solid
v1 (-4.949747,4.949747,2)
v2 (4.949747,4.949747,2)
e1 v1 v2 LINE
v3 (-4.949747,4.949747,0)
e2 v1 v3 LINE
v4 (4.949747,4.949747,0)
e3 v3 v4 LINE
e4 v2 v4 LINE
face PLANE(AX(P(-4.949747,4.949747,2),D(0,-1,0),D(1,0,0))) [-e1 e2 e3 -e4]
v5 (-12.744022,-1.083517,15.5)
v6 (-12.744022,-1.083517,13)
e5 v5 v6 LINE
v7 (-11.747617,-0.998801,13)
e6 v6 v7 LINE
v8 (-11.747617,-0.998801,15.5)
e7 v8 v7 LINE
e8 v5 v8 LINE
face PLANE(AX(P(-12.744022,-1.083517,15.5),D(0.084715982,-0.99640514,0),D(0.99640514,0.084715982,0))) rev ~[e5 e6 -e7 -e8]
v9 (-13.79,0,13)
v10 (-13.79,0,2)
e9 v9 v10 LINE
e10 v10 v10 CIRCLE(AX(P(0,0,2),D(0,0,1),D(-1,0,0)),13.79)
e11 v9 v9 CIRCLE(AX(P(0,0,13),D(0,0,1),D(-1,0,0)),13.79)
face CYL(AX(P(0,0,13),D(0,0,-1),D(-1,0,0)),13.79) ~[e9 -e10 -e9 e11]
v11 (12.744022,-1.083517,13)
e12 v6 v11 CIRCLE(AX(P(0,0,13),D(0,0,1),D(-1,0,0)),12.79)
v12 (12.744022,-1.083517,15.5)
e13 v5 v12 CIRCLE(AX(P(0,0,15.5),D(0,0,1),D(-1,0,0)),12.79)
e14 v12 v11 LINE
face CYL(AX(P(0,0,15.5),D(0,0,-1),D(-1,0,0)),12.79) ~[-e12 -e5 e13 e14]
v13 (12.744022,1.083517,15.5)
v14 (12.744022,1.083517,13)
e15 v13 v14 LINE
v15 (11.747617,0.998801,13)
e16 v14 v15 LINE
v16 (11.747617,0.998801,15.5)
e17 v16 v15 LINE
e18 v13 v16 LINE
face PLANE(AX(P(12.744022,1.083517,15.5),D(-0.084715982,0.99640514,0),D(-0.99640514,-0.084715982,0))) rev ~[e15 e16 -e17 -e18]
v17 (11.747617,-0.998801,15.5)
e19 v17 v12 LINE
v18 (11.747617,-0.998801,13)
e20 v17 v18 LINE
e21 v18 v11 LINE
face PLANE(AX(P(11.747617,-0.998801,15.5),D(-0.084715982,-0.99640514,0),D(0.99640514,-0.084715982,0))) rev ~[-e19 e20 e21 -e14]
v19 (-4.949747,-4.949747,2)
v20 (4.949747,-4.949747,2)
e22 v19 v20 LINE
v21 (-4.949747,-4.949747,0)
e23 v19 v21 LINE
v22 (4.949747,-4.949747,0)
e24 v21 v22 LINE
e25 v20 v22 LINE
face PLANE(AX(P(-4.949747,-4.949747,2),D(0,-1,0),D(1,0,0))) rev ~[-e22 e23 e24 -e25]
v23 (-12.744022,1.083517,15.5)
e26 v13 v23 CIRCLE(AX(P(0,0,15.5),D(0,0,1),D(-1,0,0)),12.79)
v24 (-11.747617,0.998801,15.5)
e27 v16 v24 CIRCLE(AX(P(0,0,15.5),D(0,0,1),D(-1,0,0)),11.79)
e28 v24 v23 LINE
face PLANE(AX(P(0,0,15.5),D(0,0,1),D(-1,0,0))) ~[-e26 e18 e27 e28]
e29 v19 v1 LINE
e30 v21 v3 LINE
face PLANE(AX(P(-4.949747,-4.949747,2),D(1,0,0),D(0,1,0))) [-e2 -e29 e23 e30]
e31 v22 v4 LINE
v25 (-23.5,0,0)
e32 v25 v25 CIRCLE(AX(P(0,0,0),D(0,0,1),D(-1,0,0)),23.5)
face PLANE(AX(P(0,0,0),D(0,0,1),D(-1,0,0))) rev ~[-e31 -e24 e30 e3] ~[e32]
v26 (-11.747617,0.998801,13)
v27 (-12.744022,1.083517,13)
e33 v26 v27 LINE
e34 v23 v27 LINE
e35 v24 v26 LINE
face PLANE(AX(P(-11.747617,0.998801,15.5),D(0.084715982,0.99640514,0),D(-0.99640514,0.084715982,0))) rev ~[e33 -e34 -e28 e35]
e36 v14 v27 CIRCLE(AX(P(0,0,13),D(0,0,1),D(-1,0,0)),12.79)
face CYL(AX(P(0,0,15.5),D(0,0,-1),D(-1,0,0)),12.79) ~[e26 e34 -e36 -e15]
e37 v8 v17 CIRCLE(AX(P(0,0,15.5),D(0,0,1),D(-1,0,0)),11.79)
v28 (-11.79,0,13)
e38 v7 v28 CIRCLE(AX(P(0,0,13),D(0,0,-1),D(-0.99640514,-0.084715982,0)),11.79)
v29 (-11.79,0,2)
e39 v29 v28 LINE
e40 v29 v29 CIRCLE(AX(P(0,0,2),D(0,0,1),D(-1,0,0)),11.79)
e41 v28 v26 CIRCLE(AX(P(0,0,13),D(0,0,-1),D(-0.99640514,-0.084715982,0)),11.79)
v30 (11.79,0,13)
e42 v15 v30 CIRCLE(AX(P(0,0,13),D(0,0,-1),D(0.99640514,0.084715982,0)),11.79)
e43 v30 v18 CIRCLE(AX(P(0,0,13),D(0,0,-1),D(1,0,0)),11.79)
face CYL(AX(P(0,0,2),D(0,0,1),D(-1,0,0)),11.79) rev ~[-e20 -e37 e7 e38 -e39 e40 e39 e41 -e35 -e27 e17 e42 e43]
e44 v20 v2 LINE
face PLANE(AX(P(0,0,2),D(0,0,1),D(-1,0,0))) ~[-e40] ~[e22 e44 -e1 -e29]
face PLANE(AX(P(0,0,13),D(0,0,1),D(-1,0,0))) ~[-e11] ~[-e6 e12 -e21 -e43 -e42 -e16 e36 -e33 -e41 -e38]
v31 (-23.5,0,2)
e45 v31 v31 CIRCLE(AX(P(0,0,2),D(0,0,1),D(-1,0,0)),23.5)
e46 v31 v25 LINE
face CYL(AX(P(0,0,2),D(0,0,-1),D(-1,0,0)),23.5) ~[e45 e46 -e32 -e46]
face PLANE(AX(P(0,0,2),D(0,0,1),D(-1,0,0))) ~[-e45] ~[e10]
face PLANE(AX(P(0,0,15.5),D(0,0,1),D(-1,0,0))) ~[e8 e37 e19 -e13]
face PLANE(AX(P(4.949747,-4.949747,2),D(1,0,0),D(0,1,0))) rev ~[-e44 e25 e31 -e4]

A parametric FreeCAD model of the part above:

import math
import FreeCAD as App
import Part
import Sketcher

V = App.Vector

doc = App.newDocument("Part")
params = doc.addObject("Spreadsheet::Sheet", "Params")
for row, (alias, value) in enumerate([
    ("sketch1_width", "1 mm"),
    ("sketch1_height", "2 mm"),
    ("sketch1_height2", "11 mm"),
    ("sketch1_width2", "23.5 mm"),
    ("sketch1_height3", "13.5 mm"),
    ("revolution_angle", "360 deg"),
    ("sketch2_radius", "12.79 mm"),
    ("sketch2_radius2", "11.79 mm"),
    ("pocket1_length", "2.5 mm"),
], start=1):
    params.set(f"A{row}", alias)
    params.set(f"B{row}", "=" + value)
    params.setAlias(f"B{row}", alias)

body = doc.addObject("PartDesign::Body", "Body")

sketch1 = doc.addObject("Sketcher::SketchObject", "Sketch")
body.addObject(sketch1)
sketch1.AttachmentSupport = (doc.XZ_Plane, [""])
sketch1.MapMode = "FlatFace"
sketch1.addGeometry(Part.LineSegment(V(-23.5, 0, 0), V(0, 0, 0)), False)
sketch1.addGeometry(Part.LineSegment(V(0, 0, 0), V(0, 2, 0)), False)
sketch1.addGeometry(Part.LineSegment(V(0, 2, 0), V(-11.8, 2, 0)), False)
sketch1.addGeometry(Part.LineSegment(V(-11.8, 2, 0), V(-11.8, 15.5, 0)), False)
sketch1.addGeometry(Part.LineSegment(V(-11.8, 15.5, 0), V(-12.8, 15.5, 0)), False)
sketch1.addGeometry(Part.LineSegment(V(-12.8, 15.5, 0), V(-12.8, 13, 0)), False)
sketch1.addGeometry(Part.LineSegment(V(-12.8, 13, 0), V(-13.8, 13, 0)), False)
sketch1.addGeometry(Part.LineSegment(V(-13.8, 13, 0), V(-13.8, 2, 0)), False)
sketch1.addGeometry(Part.LineSegment(V(-13.8, 2, 0), V(-23.5, 2, 0)), False)
sketch1.addGeometry(Part.LineSegment(V(-23.5, 2, 0), V(-23.5, 0, 0)), False)
sketch1.addConstraint(Sketcher.Constraint("Coincident", 0, 2, 1, 1))
sketch1.addConstraint(Sketcher.Constraint("Coincident", 1, 2, 2, 1))
sketch1.addConstraint(Sketcher.Constraint("Coincident", 2, 2, 3, 1))
sketch1.addConstraint(Sketcher.Constraint("Coincident", 3, 2, 4, 1))
sketch1.addConstraint(Sketcher.Constraint("Coincident", 4, 2, 5, 1))
sketch1.addConstraint(Sketcher.Constraint("Coincident", 5, 2, 6, 1))
sketch1.addConstraint(Sketcher.Constraint("Coincident", 6, 2, 7, 1))
sketch1.addConstraint(Sketcher.Constraint("Coincident", 7, 2, 8, 1))
sketch1.addConstraint(Sketcher.Constraint("Coincident", 8, 2, 9, 1))
sketch1.addConstraint(Sketcher.Constraint("Coincident", 9, 2, 0, 1))
sketch1.addConstraint(Sketcher.Constraint("Horizontal", 0))
sketch1.addConstraint(Sketcher.Constraint("Vertical", 1))
sketch1.addConstraint(Sketcher.Constraint("Horizontal", 2))
sketch1.addConstraint(Sketcher.Constraint("Vertical", 3))
sketch1.addConstraint(Sketcher.Constraint("Horizontal", 4))
sketch1.addConstraint(Sketcher.Constraint("Vertical", 5))
sketch1.addConstraint(Sketcher.Constraint("Horizontal", 6))
sketch1.addConstraint(Sketcher.Constraint("Vertical", 7))
sketch1.addConstraint(Sketcher.Constraint("Horizontal", 8))
sketch1.addConstraint(Sketcher.Constraint("Vertical", 9))
sketch1.addConstraint(Sketcher.Constraint("Coincident", 0, 2, -1, 1))
sketch1.addConstraint(Sketcher.Constraint("Horizontal", 2, 2, 7, 2))
sketch1.addConstraint(Sketcher.Constraint("Equal", 4, 6))
sketch1.addConstraint(Sketcher.Constraint("DistanceX", 4, 2, 4, 1, 1.0))
sketch1.addConstraint(Sketcher.Constraint("DistanceY", 1, 1, 1, 2, 2.0))
sketch1.addConstraint(Sketcher.Constraint("DistanceY", 7, 2, 7, 1, 11.0))
sketch1.addConstraint(Sketcher.Constraint("DistanceX", 0, 1, 0, 2, 23.5))
sketch1.addConstraint(Sketcher.Constraint("DistanceY", 3, 1, 3, 2, 13.5))
sketch1.addConstraint(Sketcher.Constraint("DistanceX", 2, 2, 2, 1, 11.79))
sketch1.setExpression("Constraints[23]", "Params.sketch1_width")
sketch1.setExpression("Constraints[24]", "Params.sketch1_height")
sketch1.setExpression("Constraints[25]", "Params.sketch1_height2")
sketch1.setExpression("Constraints[26]", "Params.sketch1_width2")
sketch1.setExpression("Constraints[27]", "Params.sketch1_height3")
revolution = doc.addObject("PartDesign::Revolution", "Revolution")
body.addObject(revolution)
revolution.Profile = sketch1
revolution.ReferenceAxis = (sketch1, ["V_Axis"])
revolution.setExpression("Angle", "Params.revolution_angle")

sketch2 = doc.addObject("Sketcher::SketchObject", "Sketch001")
body.addObject(sketch2)
sketch2.AttachmentSupport = (doc.XY_Plane, [""])
sketch2.MapMode = "FlatFace"
sketch2.AttachmentOffset = App.Placement(V(0, 0, 15.5), App.Rotation())
sketch2.addGeometry(Part.LineSegment(V(-11.7, 1, 0), V(-12.7, 1.1, 0)), False)
sketch2.addGeometry(Part.ArcOfCircle(Part.Circle(V(0, 0, 0), V(0, 0, 1), 12.8), math.radians(175.14), math.radians(184.86)), False)
sketch2.addGeometry(Part.LineSegment(V(-12.7, -1.1, 0), V(-11.7, -1, 0)), False)
sketch2.addGeometry(Part.ArcOfCircle(Part.Circle(V(0, 0, 0), V(0, 0, 1), 11.8), math.radians(175.14), math.radians(184.86)), False)
sketch2.addGeometry(Part.ArcOfCircle(Part.Circle(V(0, 0, 0), V(0, 0, 1), 12.8), math.radians(-4.86), math.radians(0)), False)
sketch2.addGeometry(Part.ArcOfCircle(Part.Circle(V(0, 0, 0), V(0, 0, 1), 12.8), math.radians(0), math.radians(4.86)), False)
sketch2.addGeometry(Part.LineSegment(V(12.7, 1.1, 0), V(11.7, 1, 0)), False)
sketch2.addGeometry(Part.ArcOfCircle(Part.Circle(V(0, 0, 0), V(0, 0, 1), 11.8), math.radians(0), math.radians(4.86)), False)
sketch2.addGeometry(Part.ArcOfCircle(Part.Circle(V(0, 0, 0), V(0, 0, 1), 11.8), math.radians(-4.86), math.radians(0)), False)
sketch2.addGeometry(Part.LineSegment(V(11.7, -1, 0), V(12.7, -1.1, 0)), False)
sketch2.addConstraint(Sketcher.Constraint("Coincident", 0, 2, 1, 1))
sketch2.addConstraint(Sketcher.Constraint("Coincident", 1, 2, 2, 1))
sketch2.addConstraint(Sketcher.Constraint("Coincident", 2, 2, 3, 2))
sketch2.addConstraint(Sketcher.Constraint("Coincident", 3, 1, 0, 1))
sketch2.addConstraint(Sketcher.Constraint("Tangent", 4, 2, 5, 1))
sketch2.addConstraint(Sketcher.Constraint("Coincident", 5, 2, 6, 1))
sketch2.addConstraint(Sketcher.Constraint("Coincident", 6, 2, 7, 2))
sketch2.addConstraint(Sketcher.Constraint("Tangent", 7, 1, 8, 2))
sketch2.addConstraint(Sketcher.Constraint("Coincident", 8, 1, 9, 1))
sketch2.addConstraint(Sketcher.Constraint("Coincident", 9, 2, 4, 1))
sketch2.addConstraint(Sketcher.Constraint("Coincident", 1, 3, -1, 1))
sketch2.addConstraint(Sketcher.Constraint("Coincident", 3, 3, -1, 1))
sketch2.addConstraint(Sketcher.Constraint("Coincident", 4, 3, -1, 1))
sketch2.addConstraint(Sketcher.Constraint("Coincident", 7, 3, -1, 1))
sketch2.addConstraint(Sketcher.Constraint("Equal", 1, 4))
sketch2.addConstraint(Sketcher.Constraint("Equal", 4, 5))
sketch2.addConstraint(Sketcher.Constraint("Equal", 3, 7))
sketch2.addConstraint(Sketcher.Constraint("Equal", 7, 8))
sketch2.addConstraint(Sketcher.Constraint("PointOnObject", 4, 2, -1))
sketch2.addConstraint(Sketcher.Constraint("PointOnObject", 7, 1, -1))
sketch2.addConstraint(Sketcher.Constraint("Parallel", 2, 6))
sketch2.addConstraint(Sketcher.Constraint("Parallel", 0, 9))
sketch2.addConstraint(Sketcher.Constraint("Horizontal", 0, 2, 5, 2))
sketch2.addConstraint(Sketcher.Constraint("Horizontal", 3, 1, 6, 2))
sketch2.addConstraint(Sketcher.Constraint("Horizontal", 2, 2, 8, 1))
sketch2.addConstraint(Sketcher.Constraint("Vertical", 0, 2, 1, 2))
sketch2.addConstraint(Sketcher.Constraint("Radius", 1, 12.79))
sketch2.addConstraint(Sketcher.Constraint("Radius", 3, 11.79))
sketch2.addConstraint(Sketcher.Constraint("DistanceY", 2, 2, -1, 1, 0.998801))
sketch2.addConstraint(Sketcher.Constraint("DistanceX", 0, 2, -1, 1, 12.744022))
sketch2.setExpression("Constraints[26]", "Params.sketch2_radius")
sketch2.setExpression("Constraints[27]", "Params.sketch2_radius2")
pocket1 = doc.addObject("PartDesign::Pocket", "Pocket")
body.addObject(pocket1)
pocket1.Profile = sketch2
pocket1.setExpression("Length", "Params.pocket1_length")

sketch3 = doc.addObject("Sketcher::SketchObject", "Sketch002")
body.addObject(sketch3)
sketch3.AttachmentSupport = (doc.XY_Plane, [""])
sketch3.MapMode = "FlatFace"
sketch3.AttachmentOffset = App.Placement(V(0, 0, 2), App.Rotation())
sketch3.addGeometry(Part.LineSegment(V(-5, 5, 0), V(-5, -5, 0)), False)
sketch3.addGeometry(Part.LineSegment(V(-5, -5, 0), V(5, -5, 0)), False)
sketch3.addGeometry(Part.LineSegment(V(5, -5, 0), V(5, 5, 0)), False)
sketch3.addGeometry(Part.LineSegment(V(5, 5, 0), V(-5, 5, 0)), False)
sketch3.addConstraint(Sketcher.Constraint("Coincident", 0, 2, 1, 1))
sketch3.addConstraint(Sketcher.Constraint("Coincident", 1, 2, 2, 1))
sketch3.addConstraint(Sketcher.Constraint("Coincident", 2, 2, 3, 1))
sketch3.addConstraint(Sketcher.Constraint("Coincident", 3, 2, 0, 1))
sketch3.addConstraint(Sketcher.Constraint("Vertical", 0))
sketch3.addConstraint(Sketcher.Constraint("Horizontal", 1))
sketch3.addConstraint(Sketcher.Constraint("Vertical", 2))
sketch3.addConstraint(Sketcher.Constraint("Horizontal", 3))
sketch3.addConstraint(Sketcher.Constraint("Symmetric", 0, 2, 2, 2, -1, 1))
sketch3.addConstraint(Sketcher.Constraint("Equal", 3, 0))
sketch3.addConstraint(Sketcher.Constraint("DistanceX", 1, 1, 1, 2, 9.899495))
pocket2 = doc.addObject("PartDesign::Pocket", "Pocket001")
body.addObject(pocket2)
pocket2.Profile = sketch3
pocket2.Type = "ThroughAll"

doc.recompute()
